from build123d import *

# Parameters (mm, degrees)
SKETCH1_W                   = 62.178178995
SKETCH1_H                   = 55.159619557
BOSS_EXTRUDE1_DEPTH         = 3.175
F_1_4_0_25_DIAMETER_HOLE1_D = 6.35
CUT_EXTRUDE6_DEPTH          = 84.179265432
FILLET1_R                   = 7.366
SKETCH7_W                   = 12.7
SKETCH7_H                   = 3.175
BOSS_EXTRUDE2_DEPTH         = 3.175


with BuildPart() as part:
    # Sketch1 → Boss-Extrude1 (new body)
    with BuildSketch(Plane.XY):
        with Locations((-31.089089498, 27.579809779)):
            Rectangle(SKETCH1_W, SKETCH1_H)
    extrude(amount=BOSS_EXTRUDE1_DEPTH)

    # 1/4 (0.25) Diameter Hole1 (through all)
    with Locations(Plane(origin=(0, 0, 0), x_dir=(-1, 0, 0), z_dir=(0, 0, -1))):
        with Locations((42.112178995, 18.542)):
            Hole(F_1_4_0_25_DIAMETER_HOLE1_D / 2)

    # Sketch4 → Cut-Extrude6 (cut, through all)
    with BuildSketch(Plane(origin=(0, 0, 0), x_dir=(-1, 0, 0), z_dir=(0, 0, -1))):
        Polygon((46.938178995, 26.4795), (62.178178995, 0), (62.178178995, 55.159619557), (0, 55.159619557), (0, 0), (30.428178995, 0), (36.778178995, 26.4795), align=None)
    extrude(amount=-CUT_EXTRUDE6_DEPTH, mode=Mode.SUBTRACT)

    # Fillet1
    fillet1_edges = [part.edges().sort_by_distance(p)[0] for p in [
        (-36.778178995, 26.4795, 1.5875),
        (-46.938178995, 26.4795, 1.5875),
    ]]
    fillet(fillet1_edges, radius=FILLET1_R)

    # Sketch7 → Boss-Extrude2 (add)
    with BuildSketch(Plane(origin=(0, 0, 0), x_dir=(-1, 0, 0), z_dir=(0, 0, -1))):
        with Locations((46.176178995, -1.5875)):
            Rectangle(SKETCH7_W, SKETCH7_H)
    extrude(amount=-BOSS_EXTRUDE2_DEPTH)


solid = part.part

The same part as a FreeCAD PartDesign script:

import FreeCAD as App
import Part
import Sketcher
Q = App.Units.Quantity


def edges_at(feature, points):
    """Names of the edges that pass closest to the given points."""
    edges = feature.Shape.Edges
    near = lambda p: min(range(len(edges)), key=lambda i: edges[i].distToShape(Part.Vertex(*p))[0])
    return sorted({f"Edge{near(p) + 1}" for p in points})


def add_polygon(sketch, points):
    """Adds a closed chain of lines whose ends are joined by coincident constraints."""
    first, n = sketch.GeometryCount, len(points)
    for a, b in zip(points, points[1:] + points[:1]):
        sketch.addGeometry(Part.LineSegment(App.Vector(*a, 0), App.Vector(*b, 0)), False)
    for i in range(n):
        sketch.addConstraint(Sketcher.Constraint("Coincident", first + i, 2, first + (i + 1) % n, 1))

doc = App.newDocument("Part")
body = doc.addObject("PartDesign::Body", "Body")

sketch1 = doc.addObject("Sketcher::SketchObject", "Sketch")
body.addObject(sketch1)
sketch1.AttachmentSupport = (doc.XY_Plane, [""])
sketch1.MapMode = "FlatFace"
add_polygon(sketch1, [(-62.178179, 55.15962), (-62.178179, 0), (0, 0), (0, 55.15962)])
sketch1.addConstraint(Sketcher.Constraint("Vertical", 0))
sketch1.addConstraint(Sketcher.Constraint("Horizontal", 1))
sketch1.addConstraint(Sketcher.Constraint("Vertical", 2))
sketch1.addConstraint(Sketcher.Constraint("Horizontal", 3))
sketch1.addConstraint(Sketcher.Constraint("Coincident", 1, 2, -1, 1))
sketch1.addConstraint(Sketcher.Constraint("DistanceX", 1, 1, 1, 2, Q("62.178179 mm")))
sketch1.addConstraint(Sketcher.Constraint("DistanceY", 0, 2, 0, 1, Q("55.15962 mm")))
pad1 = doc.addObject("PartDesign::Pad", "Pad")
body.addObject(pad1)
pad1.Profile = sketch1
pad1.Length = Q("0.125 in")

sketch2 = doc.addObject("Sketcher::SketchObject", "Sketch001")
body.addObject(sketch2)
sketch2.AttachmentSupport = (doc.XY_Plane, [""])
sketch2.MapMode = "FlatFace"
sketch2.addGeometry(Part.Circle(App.Vector(-42.112179, 18.542, 0), App.Vector(0, 0, 1), 3.175), False)
sketch2.addConstraint(Sketcher.Constraint("Diameter", 0, Q("0.25 in")))
sketch2.addConstraint(Sketcher.Constraint("DistanceY", -1, 1, 0, 3, Q("0.73 in")))
sketch2.addConstraint(Sketcher.Constraint("DistanceX", 0, 3, -1, 1, Q("42.112179 mm")))
doc.recompute()
hole = doc.addObject("PartDesign::Hole", "Hole")
body.addObject(hole)
hole.Profile = sketch2
hole.ThreadType = "None"
hole.Diameter = Q("0.25 in")
hole.DepthType = "ThroughAll"
hole.Reversed = True

sketch3 = doc.addObject("Sketcher::SketchObject", "Sketch002")
body.addObject(sketch3)
sketch3.AttachmentSupport = (doc.XY_Plane, [""])
sketch3.MapMode = "FlatFace"
add_polygon(sketch3, [(-46.938179, 26.4795), (-62.178179, 0), (-62.178179, 55.15962), (0, 55.15962), (0, 0), (-30.428179, 0), (-36.778179, 26.4795)])
sketch3.addConstraint(Sketcher.Constraint("Vertical", 1))
sketch3.addConstraint(Sketcher.Constraint("Horizontal", 2))
sketch3.addConstraint(Sketcher.Constraint("Vertical", 3))
sketch3.addConstraint(Sketcher.Constraint("Horizontal", 4))
sketch3.addConstraint(Sketcher.Constraint("Horizontal", 6))
sketch3.addConstraint(Sketcher.Constraint("Coincident", 3, 2, -1, 1))
sketch3.addConstraint(Sketcher.Constraint("PointOnObject", 0, 2, -1))
sketch3.addConstraint(Sketcher.Constraint("DistanceX", 6, 2, 6, 1, Q("0.4 in")))
sketch3.addConstraint(Sketcher.Constraint("DistanceX", 0, 2, 5, 2, Q("1 in")))
sketch3.addConstraint(Sketcher.Constraint("DistanceX", 0, 2, 4, 2, Q("1.25 in")))
sketch3.addConstraint(Sketcher.Constraint("DistanceY", -1, 1, 5, 2, Q("1.0425 in")))
sketch3.addConstraint(Sketcher.Constraint("DistanceX", 2, 1, 2, 2, Q("62.178179 mm")))
sketch3.addConstraint(Sketcher.Constraint("DistanceY", 1, 1, 1, 2, Q("55.15962 mm")))
pocket1 = doc.addObject("PartDesign::Pocket", "Pocket")
body.addObject(pocket1)
pocket1.Profile = sketch3
pocket1.Type = "ThroughAll"
pocket1.Reversed = True
doc.recompute()

fillet = doc.addObject("PartDesign::Fillet", "Fillet")
body.addObject(fillet)
fillet.Base = (pocket1, edges_at(pocket1, [(-36.778, 26.48, 1.587), (-46.938, 26.48, 1.587)]))
fillet.Radius = Q("0.29 in")

sketch4 = doc.addObject("Sketcher::SketchObject", "Sketch003")
body.addObject(sketch4)
sketch4.AttachmentSupport = (doc.XY_Plane, [""])
sketch4.MapMode = "FlatFace"
add_polygon(sketch4, [(-39.826179, 0), (-39.826179, -3.175), (-52.526179, -3.175), (-52.526179, 0)])
sketch4.addConstraint(Sketcher.Constraint("Vertical", 0))
sketch4.addConstraint(Sketcher.Constraint("Horizontal", 1))
sketch4.addConstraint(Sketcher.Constraint("Vertical", 2))
sketch4.addConstraint(Sketcher.Constraint("Horizontal", 3))
sketch4.addConstraint(Sketcher.Constraint("PointOnObject", 2, 2, -1))
sketch4.addConstraint(Sketcher.Constraint("DistanceX", 1, 2, 1, 1, Q("0.5 in")))
sketch4.addConstraint(Sketcher.Constraint("DistanceY", 0, 2, 0, 1, Q("0.125 in")))
sketch4.addConstraint(Sketcher.Constraint("DistanceX", 0, 2, -1, 1, Q("39.826179 mm")))
pad2 = doc.addObject("PartDesign::Pad", "Pad001")
body.addObject(pad2)
pad2.Profile = sketch4
pad2.Length = Q("0.125 in")

doc.recompute()
